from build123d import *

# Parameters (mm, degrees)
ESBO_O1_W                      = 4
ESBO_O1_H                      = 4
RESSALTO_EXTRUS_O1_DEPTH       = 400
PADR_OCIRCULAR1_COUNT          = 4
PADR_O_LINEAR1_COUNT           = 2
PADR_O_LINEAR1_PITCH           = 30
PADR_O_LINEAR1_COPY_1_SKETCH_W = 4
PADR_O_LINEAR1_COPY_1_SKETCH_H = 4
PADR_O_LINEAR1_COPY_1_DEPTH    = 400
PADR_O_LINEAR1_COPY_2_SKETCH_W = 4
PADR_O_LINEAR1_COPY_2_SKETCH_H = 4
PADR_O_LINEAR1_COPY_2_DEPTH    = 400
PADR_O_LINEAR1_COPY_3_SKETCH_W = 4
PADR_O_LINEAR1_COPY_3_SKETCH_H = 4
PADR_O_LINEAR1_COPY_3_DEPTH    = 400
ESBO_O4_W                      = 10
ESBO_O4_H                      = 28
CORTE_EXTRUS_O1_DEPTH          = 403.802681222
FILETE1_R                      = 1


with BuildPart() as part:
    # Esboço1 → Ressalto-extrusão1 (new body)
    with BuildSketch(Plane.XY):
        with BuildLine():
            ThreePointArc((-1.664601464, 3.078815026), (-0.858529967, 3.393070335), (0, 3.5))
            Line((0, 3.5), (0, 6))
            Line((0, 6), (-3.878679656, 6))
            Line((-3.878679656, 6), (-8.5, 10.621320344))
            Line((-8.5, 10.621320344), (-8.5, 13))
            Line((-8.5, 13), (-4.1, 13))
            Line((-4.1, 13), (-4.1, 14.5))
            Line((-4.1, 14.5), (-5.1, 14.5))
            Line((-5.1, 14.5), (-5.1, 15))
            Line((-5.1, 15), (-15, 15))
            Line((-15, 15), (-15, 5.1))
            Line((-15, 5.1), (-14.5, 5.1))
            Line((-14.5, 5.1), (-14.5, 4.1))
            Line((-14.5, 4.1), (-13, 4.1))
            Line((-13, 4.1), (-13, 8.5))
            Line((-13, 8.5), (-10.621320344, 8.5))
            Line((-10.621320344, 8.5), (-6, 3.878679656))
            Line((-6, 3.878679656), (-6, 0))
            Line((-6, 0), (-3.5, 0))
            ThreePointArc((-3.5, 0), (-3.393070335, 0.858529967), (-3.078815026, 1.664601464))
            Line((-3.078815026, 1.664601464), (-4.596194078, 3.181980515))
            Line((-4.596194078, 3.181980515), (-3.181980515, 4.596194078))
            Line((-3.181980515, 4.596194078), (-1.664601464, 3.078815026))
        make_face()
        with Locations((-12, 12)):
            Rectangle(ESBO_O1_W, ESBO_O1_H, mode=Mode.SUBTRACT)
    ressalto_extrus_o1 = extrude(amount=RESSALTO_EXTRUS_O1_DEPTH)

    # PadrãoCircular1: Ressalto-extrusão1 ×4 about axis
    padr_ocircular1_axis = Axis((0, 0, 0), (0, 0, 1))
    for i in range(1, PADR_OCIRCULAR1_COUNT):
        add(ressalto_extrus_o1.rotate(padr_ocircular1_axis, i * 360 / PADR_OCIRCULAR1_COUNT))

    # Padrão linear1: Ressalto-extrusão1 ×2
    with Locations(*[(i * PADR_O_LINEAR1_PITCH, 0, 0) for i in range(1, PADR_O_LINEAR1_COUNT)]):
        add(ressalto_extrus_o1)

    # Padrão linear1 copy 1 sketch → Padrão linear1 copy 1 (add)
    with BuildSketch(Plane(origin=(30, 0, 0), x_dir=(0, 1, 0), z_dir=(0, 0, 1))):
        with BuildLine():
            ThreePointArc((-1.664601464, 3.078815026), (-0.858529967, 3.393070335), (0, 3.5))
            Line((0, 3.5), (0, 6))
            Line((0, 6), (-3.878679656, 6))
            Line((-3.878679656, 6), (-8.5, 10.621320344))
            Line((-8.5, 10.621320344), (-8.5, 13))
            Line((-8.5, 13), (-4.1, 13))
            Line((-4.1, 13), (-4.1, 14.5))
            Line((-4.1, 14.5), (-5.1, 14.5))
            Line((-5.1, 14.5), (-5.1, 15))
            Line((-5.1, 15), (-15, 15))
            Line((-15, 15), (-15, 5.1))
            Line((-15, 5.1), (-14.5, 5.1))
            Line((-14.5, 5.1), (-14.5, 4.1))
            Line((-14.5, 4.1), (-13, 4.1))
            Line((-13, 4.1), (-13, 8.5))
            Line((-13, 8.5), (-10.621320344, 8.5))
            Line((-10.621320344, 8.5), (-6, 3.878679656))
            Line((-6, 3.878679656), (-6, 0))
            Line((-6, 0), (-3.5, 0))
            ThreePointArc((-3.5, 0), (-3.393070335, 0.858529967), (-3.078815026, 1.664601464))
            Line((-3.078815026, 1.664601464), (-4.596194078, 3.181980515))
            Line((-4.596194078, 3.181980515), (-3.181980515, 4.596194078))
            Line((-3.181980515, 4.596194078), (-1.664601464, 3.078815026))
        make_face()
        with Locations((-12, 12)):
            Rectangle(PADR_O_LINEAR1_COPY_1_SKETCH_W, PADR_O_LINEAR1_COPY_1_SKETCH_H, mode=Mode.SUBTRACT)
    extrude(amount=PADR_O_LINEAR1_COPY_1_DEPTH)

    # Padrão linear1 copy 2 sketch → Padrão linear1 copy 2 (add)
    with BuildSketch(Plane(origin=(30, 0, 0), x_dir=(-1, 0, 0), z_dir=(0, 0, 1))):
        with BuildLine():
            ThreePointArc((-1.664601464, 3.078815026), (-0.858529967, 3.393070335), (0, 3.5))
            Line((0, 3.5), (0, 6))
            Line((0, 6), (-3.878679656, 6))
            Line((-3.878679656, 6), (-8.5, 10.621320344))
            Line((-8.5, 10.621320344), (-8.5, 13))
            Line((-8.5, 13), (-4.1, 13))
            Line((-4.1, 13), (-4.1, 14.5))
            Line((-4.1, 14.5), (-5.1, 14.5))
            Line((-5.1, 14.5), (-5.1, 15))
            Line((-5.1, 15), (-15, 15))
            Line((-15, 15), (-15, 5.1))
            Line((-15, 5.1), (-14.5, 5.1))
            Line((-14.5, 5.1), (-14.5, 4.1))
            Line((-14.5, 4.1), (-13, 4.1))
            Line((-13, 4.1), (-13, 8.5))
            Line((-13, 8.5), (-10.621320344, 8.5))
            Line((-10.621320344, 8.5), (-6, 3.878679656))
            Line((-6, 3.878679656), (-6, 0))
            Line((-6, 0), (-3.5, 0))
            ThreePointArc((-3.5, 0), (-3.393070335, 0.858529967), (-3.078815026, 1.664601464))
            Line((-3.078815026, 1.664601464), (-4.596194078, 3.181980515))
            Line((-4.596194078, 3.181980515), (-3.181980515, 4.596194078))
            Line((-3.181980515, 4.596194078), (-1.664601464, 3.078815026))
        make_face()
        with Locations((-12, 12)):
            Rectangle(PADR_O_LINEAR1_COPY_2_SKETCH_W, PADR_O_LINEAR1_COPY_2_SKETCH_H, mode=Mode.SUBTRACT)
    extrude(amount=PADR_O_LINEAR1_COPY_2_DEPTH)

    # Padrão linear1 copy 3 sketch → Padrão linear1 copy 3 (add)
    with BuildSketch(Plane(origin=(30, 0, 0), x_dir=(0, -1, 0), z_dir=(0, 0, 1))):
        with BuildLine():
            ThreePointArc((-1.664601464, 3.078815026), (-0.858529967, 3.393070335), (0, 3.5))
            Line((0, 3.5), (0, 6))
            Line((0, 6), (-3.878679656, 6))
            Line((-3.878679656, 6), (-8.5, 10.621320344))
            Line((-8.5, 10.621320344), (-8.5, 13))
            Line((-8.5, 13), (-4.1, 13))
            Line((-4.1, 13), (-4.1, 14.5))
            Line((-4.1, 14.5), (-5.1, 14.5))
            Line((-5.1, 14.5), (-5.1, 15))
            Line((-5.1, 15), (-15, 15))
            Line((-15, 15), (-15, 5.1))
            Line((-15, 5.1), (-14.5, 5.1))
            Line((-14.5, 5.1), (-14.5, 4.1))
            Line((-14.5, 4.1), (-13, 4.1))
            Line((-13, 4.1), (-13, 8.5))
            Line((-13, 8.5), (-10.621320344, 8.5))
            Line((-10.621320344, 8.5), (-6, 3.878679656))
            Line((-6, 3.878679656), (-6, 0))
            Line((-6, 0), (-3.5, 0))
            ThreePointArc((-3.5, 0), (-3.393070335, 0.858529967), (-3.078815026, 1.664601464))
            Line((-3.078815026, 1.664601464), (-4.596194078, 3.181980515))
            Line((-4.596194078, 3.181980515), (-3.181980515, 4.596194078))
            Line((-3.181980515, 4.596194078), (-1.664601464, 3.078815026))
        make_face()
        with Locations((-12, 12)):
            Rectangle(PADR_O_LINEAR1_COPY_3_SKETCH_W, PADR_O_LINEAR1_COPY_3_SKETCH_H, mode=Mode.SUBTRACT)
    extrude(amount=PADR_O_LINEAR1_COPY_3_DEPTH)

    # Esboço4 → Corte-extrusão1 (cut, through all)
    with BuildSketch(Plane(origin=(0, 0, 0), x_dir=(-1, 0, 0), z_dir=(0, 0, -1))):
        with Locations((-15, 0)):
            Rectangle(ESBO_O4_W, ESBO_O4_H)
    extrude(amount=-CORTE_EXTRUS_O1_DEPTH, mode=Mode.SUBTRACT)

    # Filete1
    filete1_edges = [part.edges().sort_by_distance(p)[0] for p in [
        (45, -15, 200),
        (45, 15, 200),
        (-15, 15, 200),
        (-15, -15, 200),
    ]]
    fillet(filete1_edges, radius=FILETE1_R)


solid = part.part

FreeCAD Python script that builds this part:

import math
import FreeCAD as App
import Part
import Sketcher
from FreeCAD import Vector
Q = App.Units.Quantity


def edges_at(feature, points):
    """Names of the edges that pass closest to the given points."""
    edges = feature.Shape.Edges
    near = lambda p: min(range(len(edges)), key=lambda i: edges[i].distToShape(Part.Vertex(*p))[0])
    return sorted({f"Edge{near(p) + 1}" for p in points})


def add_polygon(sketch, points):
    """Adds a closed chain of lines whose ends are joined by coincident constraints."""
    first, n = sketch.GeometryCount, len(points)
    for a, b in zip(points, points[1:] + points[:1]):
        sketch.addGeometry(Part.LineSegment(App.Vector(*a, 0), App.Vector(*b, 0)), False)
    for i in range(n):
        sketch.addConstraint(Sketcher.Constraint("Coincident", first + i, 2, first + (i + 1) % n, 1))

doc = App.newDocument("Part")
body = doc.addObject("PartDesign::Body", "Body")

# Sketch on XY plane
sketch1 = body.newObject("Sketcher::SketchObject", "Sketch")
sketch1.AttachmentSupport = (doc.getObject("XY_Plane"), [""])
sketch1.MapMode = "FlatFace"
sketch1.addGeometry(Part.ArcOfCircle(Part.Circle(Vector(0, 0, 0), Vector(0, 0, 1), 3.5), math.radians(90), math.radians(118)), False)  # 0
sketch1.addGeometry(Part.LineSegment(Vector(0, 3.5, 0), Vector(0, 6, 0)), False)  # 1
sketch1.addGeometry(Part.LineSegment(Vector(0, 6, 0), Vector(-3.9, 6, 0)), False)  # 2
sketch1.addGeometry(Part.LineSegment(Vector(-3.9, 6, 0), Vector(-8.5, 10.6, 0)), False)  # 3
sketch1.addGeometry(Part.LineSegment(Vector(-8.5, 10.6, 0), Vector(-8.5, 13, 0)), False)  # 4
sketch1.addGeometry(Part.LineSegment(Vector(-8.5, 13, 0), Vector(-4.1, 13, 0)), False)  # 5
sketch1.addGeometry(Part.LineSegment(Vector(-4.1, 13, 0), Vector(-4.1, 14.5, 0)), False)  # 6
sketch1.addGeometry(Part.LineSegment(Vector(-4.1, 14.5, 0), Vector(-5.1, 14.5, 0)), False)  # 7
sketch1.addGeometry(Part.LineSegment(Vector(-5.1, 14.5, 0), Vector(-5.1, 15, 0)), False)  # 8
sketch1.addGeometry(Part.LineSegment(Vector(-5.1, 15, 0), Vector(-15, 15, 0)), False)  # 9
sketch1.addGeometry(Part.LineSegment(Vector(-15, 15, 0), Vector(-15, 5.1, 0)), False)  # 10
sketch1.addGeometry(Part.LineSegment(Vector(-15, 5.1, 0), Vector(-14.5, 5.1, 0)), False)  # 11
sketch1.addGeometry(Part.LineSegment(Vector(-14.5, 5.1, 0), Vector(-14.5, 4.1, 0)), False)  # 12
sketch1.addGeometry(Part.LineSegment(Vector(-14.5, 4.1, 0), Vector(-13, 4.1, 0)), False)  # 13
sketch1.addGeometry(Part.LineSegment(Vector(-13, 4.1, 0), Vector(-13, 8.5, 0)), False)  # 14
sketch1.addGeometry(Part.LineSegment(Vector(-13, 8.5, 0), Vector(-10.6, 8.5, 0)), False)  # 15
sketch1.addGeometry(Part.LineSegment(Vector(-10.6, 8.5, 0), Vector(-6, 3.9, 0)), False)  # 16
sketch1.addGeometry(Part.LineSegment(Vector(-6, 3.9, 0), Vector(-6, 0, 0)), False)  # 17
sketch1.addGeometry(Part.LineSegment(Vector(-6, 0, 0), Vector(-3.5, 0, 0)), False)  # 18
sketch1.addGeometry(Part.ArcOfCircle(Part.Circle(Vector(0, 0, 0), Vector(0, 0, 1), 3.5), math.radians(152), math.radians(180)), False)  # 19
sketch1.addGeometry(Part.LineSegment(Vector(-3.1, 1.7, 0), Vector(-4.6, 3.2, 0)), False)  # 20
sketch1.addGeometry(Part.LineSegment(Vector(-4.6, 3.2, 0), Vector(-3.2, 4.6, 0)), False)  # 21
sketch1.addGeometry(Part.LineSegment(Vector(-3.2, 4.6, 0), Vector(-1.7, 3.1, 0)), False)  # 22
add_polygon(sketch1, [(-10, 10), (-14, 10), (-14, 14), (-10, 14)])  # lines 23-26
sketch1.addConstraint([
    Sketcher.Constraint("Coincident", 0, 1, 1, 1),
    Sketcher.Constraint("Coincident", 1, 2, 2, 1),
    Sketcher.Constraint("Coincident", 2, 2, 3, 1),
    Sketcher.Constraint("Coincident", 3, 2, 4, 1),
    Sketcher.Constraint("Coincident", 4, 2, 5, 1),
    Sketcher.Constraint("Coincident", 5, 2, 6, 1),
    Sketcher.Constraint("Coincident", 6, 2, 7, 1),
    Sketcher.Constraint("Coincident", 7, 2, 8, 1),
    Sketcher.Constraint("Coincident", 8, 2, 9, 1),
    Sketcher.Constraint("Coincident", 9, 2, 10, 1),
    Sketcher.Constraint("Coincident", 10, 2, 11, 1),
    Sketcher.Constraint("Coincident", 11, 2, 12, 1),
    Sketcher.Constraint("Coincident", 12, 2, 13, 1),
    Sketcher.Constraint("Coincident", 13, 2, 14, 1),
    Sketcher.Constraint("Coincident", 14, 2, 15, 1),
    Sketcher.Constraint("Coincident", 15, 2, 16, 1),
    Sketcher.Constraint("Coincident", 16, 2, 17, 1),
    Sketcher.Constraint("Coincident", 17, 2, 18, 1),
    Sketcher.Constraint("Coincident", 18, 2, 19, 2),
    Sketcher.Constraint("Coincident", 19, 1, 20, 1),
    Sketcher.Constraint("Coincident", 20, 2, 21, 1),
    Sketcher.Constraint("Coincident", 21, 2, 22, 1),
    Sketcher.Constraint("Coincident", 22, 2, 0, 2),
    Sketcher.Constraint("Vertical", 1),
    Sketcher.Constraint("Horizontal", 2),
    Sketcher.Constraint("Vertical", 4),
    Sketcher.Constraint("Horizontal", 5),
    Sketcher.Constraint("Vertical", 6),
    Sketcher.Constraint("Horizontal", 7),
    Sketcher.Constraint("Vertical", 8),
    Sketcher.Constraint("Horizontal", 9),
    Sketcher.Constraint("Vertical", 10),
    Sketcher.Constraint("Horizontal", 11),
    Sketcher.Constraint("Vertical", 12),
    Sketcher.Constraint("Horizontal", 13),
    Sketcher.Constraint("Vertical", 14),
    Sketcher.Constraint("Horizontal", 15),
    Sketcher.Constraint("Vertical", 17),
    Sketcher.Constraint("Horizontal", 18),
    Sketcher.Constraint("Horizontal", 23),
    Sketcher.Constraint("Vertical", 24),
    Sketcher.Constraint("Horizontal", 25),
    Sketcher.Constraint("Vertical", 26),
    Sketcher.Constraint("Coincident", 0, 3, -1, 1),
    Sketcher.Constraint("Coincident", 19, 3, -1, 1),
    Sketcher.Constraint("Equal", 0, 19),
    Sketcher.Constraint("PointOnObject", 0, 1, -2),
    Sketcher.Constraint("PointOnObject", 17, 2, -1),
    Sketcher.Constraint("Parallel", 3, 16),
    Sketcher.Constraint("Parallel", 16, 20),
    Sketcher.Constraint("Perpendicular", 20, 21),
    Sketcher.Constraint("Perpendicular", 21, 22),
    Sketcher.Constraint("Equal", 18, 1),
    Sketcher.Constraint("Equal", 15, 4),
    Sketcher.Constraint("Equal", 13, 6),
    Sketcher.Constraint("Equal", 11, 8),
    Sketcher.Constraint("Equal", 9, 10),
    Sketcher.Constraint("Equal", 7, 12),
    Sketcher.Constraint("Equal", 5, 14),
    Sketcher.Constraint("Equal", 2, 17),
    Sketcher.Constraint("Equal", 25, 24),
    Sketcher.Constraint("Equal", 20, 22),
    Sketcher.Constraint("Radius", 0, 3.5),
    Sketcher.Constraint("DistanceX", 7, 2, 7, 1, 1.0),
    Sketcher.Constraint("DistanceX", 23, 2, 23, 1, 4.0),
    Sketcher.Constraint("Angle", 3, Q("135 deg")),
    Sketcher.Constraint("Distance", 21, 2.0),
    Sketcher.Constraint("DistanceX", 5, 1, 5, 2, 4.4),
    Sketcher.Constraint("DistanceX", 9, 2, 9, 1, 9.9),
    Sketcher.Constraint("DistanceX", 11, 1, 11, 2, 0.5),
    Sketcher.Constraint("DistanceX", 13, 1, 13, 2, 1.5),
    Sketcher.Constraint("DistanceX", 18, 1, 18, 2, 2.5),
    Sketcher.Constraint("DistanceY", -1, 1, 4, 2, 13.0),
    Sketcher.Constraint("DistanceX", 23, 2, -1, 1, 14.0),
    Sketcher.Constraint("DistanceY", -1, 1, 23, 2, 10.0),
    Sketcher.Constraint("Distance", 20, 2.145898),
    Sketcher.Constraint("DistanceX", 2, 2, 2, 1, 3.87868),
])
pad1 = body.newObject("PartDesign::Pad", "Pad")
pad1.Profile = sketch1
pad1.Length = 400
doc.recompute()

polarpattern = body.newObject("PartDesign::PolarPattern", "PolarPattern")
polarpattern.Originals = [pad1]
polarpattern.Axis = (doc.getObject("Z_Axis"), [""])
polarpattern.Angle = 360
polarpattern.Occurrences = 4
body.Tip = polarpattern
doc.recompute()

linearpattern = body.newObject("PartDesign::LinearPattern", "LinearPattern")
linearpattern.Originals = [pad1]
linearpattern.Direction = (doc.getObject("X_Axis"), [""])
linearpattern.Mode = "offset"
linearpattern.Offset = 30
linearpattern.Occurrences = 2
body.Tip = linearpattern

# Sketch on XY plane
sketch2 = body.newObject("Sketcher::SketchObject", "Sketch001")
sketch2.AttachmentSupport = (doc.getObject("XY_Plane"), [""])
sketch2.MapMode = "FlatFace"
sketch2.addGeometry(Part.ArcOfCircle(Part.Circle(Vector(30, 0, 0), Vector(0, 0, 1), 3.5), math.radians(180), math.radians(208)), False)  # 0
sketch2.addGeometry(Part.LineSegment(Vector(26.5, 0, 0), Vector(24, 0, 0)), False)  # 1
sketch2.addGeometry(Part.LineSegment(Vector(24, 0, 0), Vector(24, -3.9, 0)), False)  # 2
sketch2.addGeometry(Part.LineSegment(Vector(24, -3.9, 0), Vector(19.4, -8.5, 0)), False)  # 3
sketch2.addGeometry(Part.LineSegment(Vector(19.4, -8.5, 0), Vector(17, -8.5, 0)), False)  # 4
sketch2.addGeometry(Part.LineSegment(Vector(17, -8.5, 0), Vector(17, -4.1, 0)), False)  # 5
sketch2.addGeometry(Part.LineSegment(Vector(17, -4.1, 0), Vector(15.5, -4.1, 0)), False)  # 6
sketch2.addGeometry(Part.LineSegment(Vector(15.5, -4.1, 0), Vector(15.5, -5.1, 0)), False)  # 7
sketch2.addGeometry(Part.LineSegment(Vector(15.5, -5.1, 0), Vector(15, -5.1, 0)), False)  # 8
sketch2.addGeometry(Part.LineSegment(Vector(15, -5.1, 0), Vector(15, -15, 0)), False)  # 9
sketch2.addGeometry(Part.LineSegment(Vector(15, -15, 0), Vector(24.9, -15, 0)), False)  # 10
sketch2.addGeometry(Part.LineSegment(Vector(24.9, -15, 0), Vector(24.9, -14.5, 0)), False)  # 11
sketch2.addGeometry(Part.LineSegment(Vector(24.9, -14.5, 0), Vector(25.9, -14.5, 0)), False)  # 12
sketch2.addGeometry(Part.LineSegment(Vector(25.9, -14.5, 0), Vector(25.9, -13, 0)), False)  # 13
sketch2.addGeometry(Part.LineSegment(Vector(25.9, -13, 0), Vector(21.5, -13, 0)), False)  # 14
sketch2.addGeometry(Part.LineSegment(Vector(21.5, -13, 0), Vector(21.5, -10.6, 0)), False)  # 15
sketch2.addGeometry(Part.LineSegment(Vector(21.5, -10.6, 0), Vector(26.1, -6, 0)), False)  # 16
sketch2.addGeometry(Part.LineSegment(Vector(26.1, -6, 0), Vector(30, -6, 0)), False)  # 17
sketch2.addGeometry(Part.LineSegment(Vector(30, -6, 0), Vector(30, -3.5, 0)), False)  # 18
sketch2.addGeometry(Part.ArcOfCircle(Part.Circle(Vector(30, 0, 0), Vector(0, 0, 1), 3.5), math.radians(-118), math.radians(-90)), False)  # 19
sketch2.addGeometry(Part.LineSegment(Vector(28.3, -3.1, 0), Vector(26.8, -4.6, 0)), False)  # 20
sketch2.addGeometry(Part.LineSegment(Vector(26.8, -4.6, 0), Vector(25.4, -3.2, 0)), False)  # 21
sketch2.addGeometry(Part.LineSegment(Vector(25.4, -3.2, 0), Vector(26.9, -1.7, 0)), False)  # 22
add_polygon(sketch2, [(20, -10), (20, -14), (16, -14), (16, -10)])  # lines 23-26
sketch2.addConstraint([
    Sketcher.Constraint("Coincident", 0, 1, 1, 1),
    Sketcher.Constraint("Coincident", 1, 2, 2, 1),
    Sketcher.Constraint("Coincident", 2, 2, 3, 1),
    Sketcher.Constraint("Coincident", 3, 2, 4, 1),
    Sketcher.Constraint("Coincident", 4, 2, 5, 1),
    Sketcher.Constraint("Coincident", 5, 2, 6, 1),
    Sketcher.Constraint("Coincident", 6, 2, 7, 1),
    Sketcher.Constraint("Coincident", 7, 2, 8, 1),
    Sketcher.Constraint("Coincident", 8, 2, 9, 1),
    Sketcher.Constraint("Coincident", 9, 2, 10, 1),
    Sketcher.Constraint("Coincident", 10, 2, 11, 1),
    Sketcher.Constraint("Coincident", 11, 2, 12, 1),
    Sketcher.Constraint("Coincident", 12, 2, 13, 1),
    Sketcher.Constraint("Coincident", 13, 2, 14, 1),
    Sketcher.Constraint("Coincident", 14, 2, 15, 1),
    Sketcher.Constraint("Coincident", 15, 2, 16, 1),
    Sketcher.Constraint("Coincident", 16, 2, 17, 1),
    Sketcher.Constraint("Coincident", 17, 2, 18, 1),
    Sketcher.Constraint("Coincident", 18, 2, 19, 2),
    Sketcher.Constraint("Coincident", 19, 1, 20, 1),
    Sketcher.Constraint("Coincident", 20, 2, 21, 1),
    Sketcher.Constraint("Coincident", 21, 2, 22, 1),
    Sketcher.Constraint("Coincident", 22, 2, 0, 2),
    Sketcher.Constraint("Horizontal", 1),
    Sketcher.Constraint("Vertical", 2),
    Sketcher.Constraint("Horizontal", 4),
    Sketcher.Constraint("Vertical", 5),
    Sketcher.Constraint("Horizontal", 6),
    Sketcher.Constraint("Vertical", 7),
    Sketcher.Constraint("Horizontal", 8),
    Sketcher.Constraint("Vertical", 9),
    Sketcher.Constraint("Horizontal", 10),
    Sketcher.Constraint("Vertical", 11),
    Sketcher.Constraint("Horizontal", 12),
    Sketcher.Constraint("Vertical", 13),
    Sketcher.Constraint("Horizontal", 14),
    Sketcher.Constraint("Vertical", 15),
    Sketcher.Constraint("Horizontal", 17),
    Sketcher.Constraint("Vertical", 18),
    Sketcher.Constraint("Vertical", 23),
    Sketcher.Constraint("Horizontal", 24),
    Sketcher.Constraint("Vertical", 25),
    Sketcher.Constraint("Horizontal", 26),
    Sketcher.Constraint("Coincident", 19, 3, 0, 3),
    Sketcher.Constraint("Equal", 0, 19),
    Sketcher.Constraint("PointOnObject", 0, 3, -1),
    Sketcher.Constraint("PointOnObject", 0, 1, -1),
    Sketcher.Constraint("Parallel", 3, 16),
    Sketcher.Constraint("Parallel", 16, 20),
    Sketcher.Constraint("Perpendicular", 20, 21),
    Sketcher.Constraint("Perpendicular", 21, 22),
    Sketcher.Constraint("Vertical", 19, 3, 17, 2),
    Sketcher.Constraint("Equal", 17, 2),
    Sketcher.Constraint("Equal", 14, 5),
    Sketcher.Constraint("Equal", 12, 7),
    Sketcher.Constraint("Equal", 10, 9),
    Sketcher.Constraint("Equal", 8, 11),
    Sketcher.Constraint("Equal", 6, 13),
    Sketcher.Constraint("Equal", 4, 15),
    Sketcher.Constraint("Equal", 1, 18),
    Sketcher.Constraint("Equal", 26, 23),
    Sketcher.Constraint("Equal", 20, 22),
    Sketcher.Constraint("Radius", 0, 3.5),
    Sketcher.Constraint("DistanceX", 12, 1, 12, 2, 1.0),
    Sketcher.Constraint("DistanceX", 24, 2, 24, 1, 4.0),
    Sketcher.Constraint("Angle", 3, Q("-135 deg")),
    Sketcher.Constraint("Distance", 21, 2.0),
    Sketcher.Constraint("DistanceX", 1, 2, 1, 1, 2.5),
    Sketcher.Constraint("DistanceX", 6, 2, 6, 1, 1.5),
    Sketcher.Constraint("DistanceX", 8, 2, 8, 1, 0.5),
    Sketcher.Constraint("DistanceX", 10, 1, 10, 2, 9.9),
    Sketcher.Constraint("DistanceX", 14, 2, 14, 1, 4.4),
    Sketcher.Constraint("DistanceX", -1, 1, 0, 3, 30.0),
    Sketcher.Constraint("DistanceX", -1, 1, 4, 2, 17.0),
    Sketcher.Constraint("DistanceX", -1, 1, 23, 2, 20.0),
    Sketcher.Constraint("DistanceY", 23, 2, -1, 1, 14.0),
    Sketcher.Constraint("Distance", 20, 2.145898),
    Sketcher.Constraint("DistanceX", 4, 2, 4, 1, 2.37868),
])
pad2 = body.newObject("PartDesign::Pad", "Pad001")
pad2.Profile = sketch2
pad2.Length = 400

# Sketch on XY plane
sketch3 = body.newObject("Sketcher::SketchObject", "Sketch002")
sketch3.AttachmentSupport = (doc.getObject("XY_Plane"), [""])
sketch3.MapMode = "FlatFace"
sketch3.addGeometry(Part.ArcOfCircle(Part.Circle(Vector(30, 0, 0), Vector(0, 0, 1), 3.5), math.radians(-90), math.radians(-62)), False)  # 0
sketch3.addGeometry(Part.LineSegment(Vector(30, -3.5, 0), Vector(30, -6, 0)), False)  # 1
sketch3.addGeometry(Part.LineSegment(Vector(30, -6, 0), Vector(33.9, -6, 0)), False)  # 2
sketch3.addGeometry(Part.LineSegment(Vector(33.9, -6, 0), Vector(38.5, -10.6, 0)), False)  # 3
sketch3.addGeometry(Part.LineSegment(Vector(38.5, -10.6, 0), Vector(38.5, -13, 0)), False)  # 4
sketch3.addGeometry(Part.LineSegment(Vector(38.5, -13, 0), Vector(34.1, -13, 0)), False)  # 5
sketch3.addGeometry(Part.LineSegment(Vector(34.1, -13, 0), Vector(34.1, -14.5, 0)), False)  # 6
sketch3.addGeometry(Part.LineSegment(Vector(34.1, -14.5, 0), Vector(35.1, -14.5, 0)), False)  # 7
sketch3.addGeometry(Part.LineSegment(Vector(35.1, -14.5, 0), Vector(35.1, -15, 0)), False)  # 8
sketch3.addGeometry(Part.LineSegment(Vector(35.1, -15, 0), Vector(45, -15, 0)), False)  # 9
sketch3.addGeometry(Part.LineSegment(Vector(45, -15, 0), Vector(45, -5.1, 0)), False)  # 10
sketch3.addGeometry(Part.LineSegment(Vector(45, -5.1, 0), Vector(44.5, -5.1, 0)), False)  # 11
sketch3.addGeometry(Part.LineSegment(Vector(44.5, -5.1, 0), Vector(44.5, -4.1, 0)), False)  # 12
sketch3.addGeometry(Part.LineSegment(Vector(44.5, -4.1, 0), Vector(43, -4.1, 0)), False)  # 13
sketch3.addGeometry(Part.LineSegment(Vector(43, -4.1, 0), Vector(43, -8.5, 0)), False)  # 14
sketch3.addGeometry(Part.LineSegment(Vector(43, -8.5, 0), Vector(40.6, -8.5, 0)), False)  # 15
sketch3.addGeometry(Part.LineSegment(Vector(40.6, -8.5, 0), Vector(36, -3.9, 0)), False)  # 16
sketch3.addGeometry(Part.LineSegment(Vector(36, -3.9, 0), Vector(36, 0, 0)), False)  # 17
sketch3.addGeometry(Part.LineSegment(Vector(36, 0, 0), Vector(33.5, 0, 0)), False)  # 18
sketch3.addGeometry(Part.ArcOfCircle(Part.Circle(Vector(30, 0, 0), Vector(0, 0, 1), 3.5), math.radians(-28), math.radians(0)), False)  # 19
sketch3.addGeometry(Part.LineSegment(Vector(33.1, -1.7, 0), Vector(34.6, -3.2, 0)), False)  # 20
sketch3.addGeometry(Part.LineSegment(Vector(34.6, -3.2, 0), Vector(33.2, -4.6, 0)), False)  # 21
sketch3.addGeometry(Part.LineSegment(Vector(33.2, -4.6, 0), Vector(31.7, -3.1, 0)), False)  # 22
add_polygon(sketch3, [(40, -10), (44, -10), (44, -14), (40, -14)])  # lines 23-26
sketch3.addConstraint([
    Sketcher.Constraint("Coincident", 0, 1, 1, 1),
    Sketcher.Constraint("Coincident", 1, 2, 2, 1),
    Sketcher.Constraint("Coincident", 2, 2, 3, 1),
    Sketcher.Constraint("Coincident", 3, 2, 4, 1),
    Sketcher.Constraint("Coincident", 4, 2, 5, 1),
    Sketcher.Constraint("Coincident", 5, 2, 6, 1),
    Sketcher.Constraint("Coincident", 6, 2, 7, 1),
    Sketcher.Constraint("Coincident", 7, 2, 8, 1),
    Sketcher.Constraint("Coincident", 8, 2, 9, 1),
    Sketcher.Constraint("Coincident", 9, 2, 10, 1),
    Sketcher.Constraint("Coincident", 10, 2, 11, 1),
    Sketcher.Constraint("Coincident", 11, 2, 12, 1),
    Sketcher.Constraint("Coincident", 12, 2, 13, 1),
    Sketcher.Constraint("Coincident", 13, 2, 14, 1),
    Sketcher.Constraint("Coincident", 14, 2, 15, 1),
    Sketcher.Constraint("Coincident", 15, 2, 16, 1),
    Sketcher.Constraint("Coincident", 16, 2, 17, 1),
    Sketcher.Constraint("Coincident", 17, 2, 18, 1),
    Sketcher.Constraint("Coincident", 18, 2, 19, 2),
    Sketcher.Constraint("Coincident", 19, 1, 20, 1),
    Sketcher.Constraint("Coincident", 20, 2, 21, 1),
    Sketcher.Constraint("Coincident", 21, 2, 22, 1),
    Sketcher.Constraint("Coincident", 22, 2, 0, 2),
    Sketcher.Constraint("Vertical", 1),
    Sketcher.Constraint("Horizontal", 2),
    Sketcher.Constraint("Vertical", 4),
    Sketcher.Constraint("Horizontal", 5),
    Sketcher.Constraint("Vertical", 6),
    Sketcher.Constraint("Horizontal", 7),
    Sketcher.Constraint("Vertical", 8),
    Sketcher.Constraint("Horizontal", 9),
    Sketcher.Constraint("Vertical", 10),
    Sketcher.Constraint("Horizontal", 11),
    Sketcher.Constraint("Vertical", 12),
    Sketcher.Constraint("Horizontal", 13),
    Sketcher.Constraint("Vertical", 14),
    Sketcher.Constraint("Horizontal", 15),
    Sketcher.Constraint("Vertical", 17),
    Sketcher.Constraint("Horizontal", 18),
    Sketcher.Constraint("Horizontal", 23),
    Sketcher.Constraint("Vertical", 24),
    Sketcher.Constraint("Horizontal", 25),
    Sketcher.Constraint("Vertical", 26),
    Sketcher.Constraint("Coincident", 19, 3, 0, 3),
    Sketcher.Constraint("Equal", 0, 19),
    Sketcher.Constraint("PointOnObject", 0, 3, -1),
    Sketcher.Constraint("PointOnObject", 17, 2, -1),
    Sketcher.Constraint("Parallel", 3, 16),
    Sketcher.Constraint("Parallel", 16, 20),
    Sketcher.Constraint("Perpendicular", 20, 21),
    Sketcher.Constraint("Perpendicular", 21, 22),
    Sketcher.Constraint("Vertical", 19, 3, 0, 1),
    Sketcher.Constraint("Equal", 18, 1),
    Sketcher.Constraint("Equal", 15, 4),
    Sketcher.Constraint("Equal", 13, 6),
    Sketcher.Constraint("Equal", 11, 8),
    Sketcher.Constraint("Equal", 9, 10),
    Sketcher.Constraint("Equal", 7, 12),
    Sketcher.Constraint("Equal", 5, 14),
    Sketcher.Constraint("Equal", 2, 17),
    Sketcher.Constraint("Equal", 25, 24),
    Sketcher.Constraint("Equal", 20, 22),
    Sketcher.Constraint("Radius", 0, 3.5),
    Sketcher.Constraint("DistanceX", 7, 1, 7, 2, 1.0),
    Sketcher.Constraint("DistanceX", 23, 1, 23, 2, 4.0),
    Sketcher.Constraint("Angle", 3, Q("-45 deg")),
    Sketcher.Constraint("Distance", 21, 2.0),
    Sketcher.Constraint("DistanceX", 5, 2, 5, 1, 4.4),
    Sketcher.Constraint("DistanceX", 9, 1, 9, 2, 9.9),
    Sketcher.Constraint("DistanceX", 11, 2, 11, 1, 0.5),
    Sketcher.Constraint("DistanceX", 13, 2, 13, 1, 1.5),
    Sketcher.Constraint("DistanceX", 18, 2, 18, 1, 2.5),
    Sketcher.Constraint("DistanceX", -1, 1, 0, 3, 30.0),
    Sketcher.Constraint("DistanceY", 4, 2, -1, 1, 13.0),
    Sketcher.Constraint("DistanceX", -1, 1, 23, 2, 44.0),
    Sketcher.Constraint("DistanceY", 23, 2, -1, 1, 10.0),
    Sketcher.Constraint("Distance", 20, 2.145898),
    Sketcher.Constraint("DistanceX", 2, 1, 2, 2, 3.87868),
])
pad3 = body.newObject("PartDesign::Pad", "Pad002")
pad3.Profile = sketch3
pad3.Length = 400

# Sketch on XY plane
sketch4 = body.newObject("Sketcher::SketchObject", "Sketch003")
sketch4.AttachmentSupport = (doc.getObject("XY_Plane"), [""])
sketch4.MapMode = "FlatFace"
sketch4.addGeometry(Part.ArcOfCircle(Part.Circle(Vector(30, 0, 0), Vector(0, 0, 1), 3.5), math.radians(0), math.radians(28)), False)  # 0
sketch4.addGeometry(Part.LineSegment(Vector(33.5, 0, 0), Vector(36, 0, 0)), False)  # 1
sketch4.addGeometry(Part.LineSegment(Vector(36, 0, 0), Vector(36, 3.9, 0)), False)  # 2
sketch4.addGeometry(Part.LineSegment(Vector(36, 3.9, 0), Vector(40.6, 8.5, 0)), False)  # 3
sketch4.addGeometry(Part.LineSegment(Vector(40.6, 8.5, 0), Vector(43, 8.5, 0)), False)  # 4
sketch4.addGeometry(Part.LineSegment(Vector(43, 8.5, 0), Vector(43, 4.1, 0)), False)  # 5
sketch4.addGeometry(Part.LineSegment(Vector(43, 4.1, 0), Vector(44.5, 4.1, 0)), False)  # 6
sketch4.addGeometry(Part.LineSegment(Vector(44.5, 4.1, 0), Vector(44.5, 5.1, 0)), False)  # 7
sketch4.addGeometry(Part.LineSegment(Vector(44.5, 5.1, 0), Vector(45, 5.1, 0)), False)  # 8
sketch4.addGeometry(Part.LineSegment(Vector(45, 5.1, 0), Vector(45, 15, 0)), False)  # 9
sketch4.addGeometry(Part.LineSegment(Vector(45, 15, 0), Vector(35.1, 15, 0)), False)  # 10
sketch4.addGeometry(Part.LineSegment(Vector(35.1, 15, 0), Vector(35.1, 14.5, 0)), False)  # 11
sketch4.addGeometry(Part.LineSegment(Vector(35.1, 14.5, 0), Vector(34.1, 14.5, 0)), False)  # 12
sketch4.addGeometry(Part.LineSegment(Vector(34.1, 14.5, 0), Vector(34.1, 13, 0)), False)  # 13
sketch4.addGeometry(Part.LineSegment(Vector(34.1, 13, 0), Vector(38.5, 13, 0)), False)  # 14
sketch4.addGeometry(Part.LineSegment(Vector(38.5, 13, 0), Vector(38.5, 10.6, 0)), False)  # 15
sketch4.addGeometry(Part.LineSegment(Vector(38.5, 10.6, 0), Vector(33.9, 6, 0)), False)  # 16
sketch4.addGeometry(Part.LineSegment(Vector(33.9, 6, 0), Vector(30, 6, 0)), False)  # 17
sketch4.addGeometry(Part.LineSegment(Vector(30, 6, 0), Vector(30, 3.5, 0)), False)  # 18
sketch4.addGeometry(Part.ArcOfCircle(Part.Circle(Vector(30, 0, 0), Vector(0, 0, 1), 3.5), math.radians(62), math.radians(90)), False)  # 19
sketch4.addGeometry(Part.LineSegment(Vector(31.7, 3.1, 0), Vector(33.2, 4.6, 0)), False)  # 20
sketch4.addGeometry(Part.LineSegment(Vector(33.2, 4.6, 0), Vector(34.6, 3.2, 0)), False)  # 21
sketch4.addGeometry(Part.LineSegment(Vector(34.6, 3.2, 0), Vector(33.1, 1.7, 0)), False)  # 22
add_polygon(sketch4, [(40, 10), (40, 14), (44, 14), (44, 10)])  # lines 23-26
sketch4.addConstraint([
    Sketcher.Constraint("Coincident", 0, 1, 1, 1),
    Sketcher.Constraint("Coincident", 1, 2, 2, 1),
    Sketcher.Constraint("Coincident", 2, 2, 3, 1),
    Sketcher.Constraint("Coincident", 3, 2, 4, 1),
    Sketcher.Constraint("Coincident", 4, 2, 5, 1),
    Sketcher.Constraint("Coincident", 5, 2, 6, 1),
    Sketcher.Constraint("Coincident", 6, 2, 7, 1),
    Sketcher.Constraint("Coincident", 7, 2, 8, 1),
    Sketcher.Constraint("Coincident", 8, 2, 9, 1),
    Sketcher.Constraint("Coincident", 9, 2, 10, 1),
    Sketcher.Constraint("Coincident", 10, 2, 11, 1),
    Sketcher.Constraint("Coincident", 11, 2, 12, 1),
    Sketcher.Constraint("Coincident", 12, 2, 13, 1),
    Sketcher.Constraint("Coincident", 13, 2, 14, 1),
    Sketcher.Constraint("Coincident", 14, 2, 15, 1),
    Sketcher.Constraint("Coincident", 15, 2, 16, 1),
    Sketcher.Constraint("Coincident", 16, 2, 17, 1),
    Sketcher.Constraint("Coincident", 17, 2, 18, 1),
    Sketcher.Constraint("Coincident", 18, 2, 19, 2),
    Sketcher.Constraint("Coincident", 19, 1, 20, 1),
    Sketcher.Constraint("Coincident", 20, 2, 21, 1),
    Sketcher.Constraint("Coincident", 21, 2, 22, 1),
    Sketcher.Constraint("Coincident", 22, 2, 0, 2),
    Sketcher.Constraint("Horizontal", 1),
    Sketcher.Constraint("Vertical", 2),
    Sketcher.Constraint("Horizontal", 4),
    Sketcher.Constraint("Vertical", 5),
    Sketcher.Constraint("Horizontal", 6),
    Sketcher.Constraint("Vertical", 7),
    Sketcher.Constraint("Horizontal", 8),
    Sketcher.Constraint("Vertical", 9),
    Sketcher.Constraint("Horizontal", 10),
    Sketcher.Constraint("Vertical", 11),
    Sketcher.Constraint("Horizontal", 12),
    Sketcher.Constraint("Vertical", 13),
    Sketcher.Constraint("Horizontal", 14),
    Sketcher.Constraint("Vertical", 15),
    Sketcher.Constraint("Horizontal", 17),
    Sketcher.Constraint("Vertical", 18),
    Sketcher.Constraint("Vertical", 23),
    Sketcher.Constraint("Horizontal", 24),
    Sketcher.Constraint("Vertical", 25),
    Sketcher.Constraint("Horizontal", 26),
    Sketcher.Constraint("Coincident", 19, 3, 0, 3),
    Sketcher.Constraint("Equal", 0, 19),
    Sketcher.Constraint("PointOnObject", 0, 3, -1),
    Sketcher.Constraint("PointOnObject", 0, 1, -1),
    Sketcher.Constraint("Parallel", 3, 16),
    Sketcher.Constraint("Parallel", 16, 20),
    Sketcher.Constraint("Perpendicular", 20, 21),
    Sketcher.Constraint("Perpendicular", 21, 22),
    Sketcher.Constraint("Vertical", 19, 3, 17, 2),
    Sketcher.Constraint("Equal", 17, 2),
    Sketcher.Constraint("Equal", 14, 5),
    Sketcher.Constraint("Equal", 12, 7),
    Sketcher.Constraint("Equal", 10, 9),
    Sketcher.Constraint("Equal", 8, 11),
    Sketcher.Constraint("Equal", 6, 13),
    Sketcher.Constraint("Equal", 4, 15),
    Sketcher.Constraint("Equal", 1, 18),
    Sketcher.Constraint("Equal", 26, 23),
    Sketcher.Constraint("Equal", 20, 22),
    Sketcher.Constraint("Radius", 0, 3.5),
    Sketcher.Constraint("DistanceX", 12, 2, 12, 1, 1.0),
    Sketcher.Constraint("DistanceX", 24, 1, 24, 2, 4.0),
    Sketcher.Constraint("Angle", 3, Q("45 deg")),
    Sketcher.Constraint("Distance", 21, 2.0),
    Sketcher.Constraint("DistanceX", 1, 1, 1, 2, 2.5),
    Sketcher.Constraint("DistanceX", 6, 1, 6, 2, 1.5),
    Sketcher.Constraint("DistanceX", 8, 1, 8, 2, 0.5),
    Sketcher.Constraint("DistanceX", 10, 2, 10, 1, 9.9),
    Sketcher.Constraint("DistanceX", 14, 1, 14, 2, 4.4),
    Sketcher.Constraint("DistanceX", -1, 1, 0, 3, 30.0),
    Sketcher.Constraint("DistanceX", -1, 1, 4, 2, 43.0),
    Sketcher.Constraint("DistanceX", -1, 1, 23, 2, 40.0),
    Sketcher.Constraint("DistanceY", -1, 1, 23, 2, 14.0),
    Sketcher.Constraint("Distance", 20, 2.145898),
    Sketcher.Constraint("DistanceX", 4, 1, 4, 2, 2.37868),
])
pad4 = body.newObject("PartDesign::Pad", "Pad003")
pad4.Profile = sketch4
pad4.Length = 400

# Sketch on XY plane
sketch5 = body.newObject("Sketcher::SketchObject", "Sketch004")
sketch5.AttachmentSupport = (doc.getObject("XY_Plane"), [""])
sketch5.MapMode = "FlatFace"
add_polygon(sketch5, [(20, 14), (20, -14), (10, -14), (10, 14)])  # lines 0-3
sketch5.addConstraint([
    Sketcher.Constraint("Vertical", 0),
    Sketcher.Constraint("Horizontal", 1),
    Sketcher.Constraint("Vertical", 2),
    Sketcher.Constraint("Horizontal", 3),
    Sketcher.Constraint("DistanceX", 1, 2, 1, 1, 10.0),
    Sketcher.Constraint("DistanceY", 0, 2, 0, 1, 28.0),
    Sketcher.Constraint("DistanceX", -1, 1, 0, 2, 20.0),
    Sketcher.Constraint("DistanceY", 0, 2, -1, 1, 14.0),
])
pocket1 = body.newObject("PartDesign::Pocket", "Pocket")
pocket1.Profile = sketch5
pocket1.Type = "ThroughAll"
pocket1.Reversed = True
doc.recompute()

fillet = body.newObject("PartDesign::Fillet", "Fillet")
fillet.Base = (pocket1, edges_at(pocket1, [
    (45, -15, 200),
    (45, 15, 200),
    (-15, 15, 200),
    (-15, -15, 200),
]))
fillet.Radius = 1

doc.recompute()
